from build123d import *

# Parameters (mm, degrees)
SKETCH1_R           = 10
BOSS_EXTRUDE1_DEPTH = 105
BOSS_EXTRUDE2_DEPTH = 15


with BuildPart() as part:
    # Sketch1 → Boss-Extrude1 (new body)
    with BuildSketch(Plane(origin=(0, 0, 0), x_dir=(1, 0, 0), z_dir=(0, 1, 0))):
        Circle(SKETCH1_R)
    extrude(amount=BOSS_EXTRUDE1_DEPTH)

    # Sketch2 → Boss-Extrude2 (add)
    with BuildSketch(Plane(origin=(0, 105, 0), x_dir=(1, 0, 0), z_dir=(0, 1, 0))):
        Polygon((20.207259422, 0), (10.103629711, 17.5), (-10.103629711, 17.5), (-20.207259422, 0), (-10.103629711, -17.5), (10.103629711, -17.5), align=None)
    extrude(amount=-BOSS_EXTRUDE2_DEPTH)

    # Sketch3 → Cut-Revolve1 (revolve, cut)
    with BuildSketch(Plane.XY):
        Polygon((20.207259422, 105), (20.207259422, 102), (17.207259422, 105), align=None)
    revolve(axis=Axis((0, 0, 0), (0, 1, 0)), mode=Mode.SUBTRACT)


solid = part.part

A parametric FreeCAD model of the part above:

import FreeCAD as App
import Part
import Sketcher

V = App.Vector
Q = App.Units.Quantity

doc = App.newDocument("Part")
body = doc.addObject("PartDesign::Body", "Body")

# Sketch on XZ plane
sketch1 = body.newObject("Sketcher::SketchObject", "Sketch")
sketch1.AttachmentSupport = (doc.getObject("XZ_Plane"), [""])
sketch1.MapMode = "FlatFace"
sketch1.addGeometry(Part.Circle(V(0, 0, 0), V(0, 0, 1), 10), False)
sketch1.addConstraint([
    Sketcher.Constraint("Coincident", 0, 3, -1, 1),
    Sketcher.Constraint("Diameter", 0, 20.0),
])
pad1 = body.newObject("PartDesign::Pad", "Pad")
pad1.Profile = sketch1
pad1.Length = 105
pad1.Reversed = True

# Sketch on XZ plane
sketch2 = body.newObject("Sketcher::SketchObject", "Sketch001")
sketch2.AttachmentSupport = (doc.getObject("XZ_Plane"), [""])
sketch2.MapMode = "FlatFace"
sketch2.AttachmentOffset = App.Placement(V(0, 0, -105), App.Rotation())
sketch2.addGeometry([
    Part.LineSegment(V(20, 0, 0), V(10, -18, 0)),  # 0
    Part.LineSegment(V(10, -18, 0), V(-10, -18, 0)),  # 1
    Part.LineSegment(V(-10, -18, 0), V(-20, 0, 0)),  # 2
    Part.LineSegment(V(-20, 0, 0), V(-10, 18, 0)),  # 3
    Part.LineSegment(V(-10, 18, 0), V(10, 18, 0)),  # 4
    Part.LineSegment(V(10, 18, 0), V(20, 0, 0)),  # 5
], False)
sketch2.addConstraint([
    Sketcher.Constraint("Coincident", 0, 2, 1, 1),
    Sketcher.Constraint("Coincident", 1, 2, 2, 1),
    Sketcher.Constraint("Coincident", 2, 2, 3, 1),
    Sketcher.Constraint("Coincident", 3, 2, 4, 1),
    Sketcher.Constraint("Coincident", 4, 2, 5, 1),
    Sketcher.Constraint("Coincident", 5, 2, 0, 1),
    Sketcher.Constraint("Horizontal", 1),
    Sketcher.Constraint("Horizontal", 4),
    Sketcher.Constraint("Symmetric", 0, 2, 3, 2, -1, 1),
    Sketcher.Constraint("Symmetric", 2, 2, 5, 2, -1, 1),
    Sketcher.Constraint("PointOnObject", 2, 2, -1),
    Sketcher.Constraint("Parallel", 2, 5),
    Sketcher.Constraint("Vertical", 1, 2, 3, 2),
    Sketcher.Constraint("Angle", 0, Q("-120 deg")),
    Sketcher.Constraint("DistanceY", 1, 2, 3, 2, 35.0),
    Sketcher.Constraint("DistanceX", 1, 2, 1, 1, 20.207259),
])
pad2 = body.newObject("PartDesign::Pad", "Pad001")
pad2.Profile = sketch2
pad2.Length = 15

# Sketch on XY plane
sketch3 = body.newObject("Sketcher::SketchObject", "Sketch002")
sketch3.AttachmentSupport = (doc.getObject("XY_Plane"), [""])
sketch3.MapMode = "FlatFace"
sketch3.addGeometry([
    Part.LineSegment(V(20.2, 102, 0), V(20.2, 105, 0)),
    Part.LineSegment(V(20.2, 105, 0), V(17.2, 105, 0)),
    Part.LineSegment(V(17.2, 105, 0), V(20.2, 102, 0)),
], False)
sketch3.addConstraint([
    Sketcher.Constraint("Coincident", 0, 2, 1, 1),
    Sketcher.Constraint("Coincident", 1, 2, 2, 1),
    Sketcher.Constraint("Coincident", 2, 2, 0, 1),
    Sketcher.Constraint("Vertical", 0),
    Sketcher.Constraint("Horizontal", 1),
    Sketcher.Constraint("Equal", 1, 0),
    Sketcher.Constraint("DistanceX", 1, 2, 1, 1, 3.0),
    Sketcher.Constraint("DistanceY", -1, 1, 0, 2, 105.0),
    Sketcher.Constraint("DistanceX", -1, 1, 0, 2, 20.207259),
])
groove = body.newObject("PartDesign::Groove", "Groove")
groove.Profile = sketch3
groove.ReferenceAxis = (sketch3, ["V_Axis"])
groove.Angle = 360

doc.recompute()
